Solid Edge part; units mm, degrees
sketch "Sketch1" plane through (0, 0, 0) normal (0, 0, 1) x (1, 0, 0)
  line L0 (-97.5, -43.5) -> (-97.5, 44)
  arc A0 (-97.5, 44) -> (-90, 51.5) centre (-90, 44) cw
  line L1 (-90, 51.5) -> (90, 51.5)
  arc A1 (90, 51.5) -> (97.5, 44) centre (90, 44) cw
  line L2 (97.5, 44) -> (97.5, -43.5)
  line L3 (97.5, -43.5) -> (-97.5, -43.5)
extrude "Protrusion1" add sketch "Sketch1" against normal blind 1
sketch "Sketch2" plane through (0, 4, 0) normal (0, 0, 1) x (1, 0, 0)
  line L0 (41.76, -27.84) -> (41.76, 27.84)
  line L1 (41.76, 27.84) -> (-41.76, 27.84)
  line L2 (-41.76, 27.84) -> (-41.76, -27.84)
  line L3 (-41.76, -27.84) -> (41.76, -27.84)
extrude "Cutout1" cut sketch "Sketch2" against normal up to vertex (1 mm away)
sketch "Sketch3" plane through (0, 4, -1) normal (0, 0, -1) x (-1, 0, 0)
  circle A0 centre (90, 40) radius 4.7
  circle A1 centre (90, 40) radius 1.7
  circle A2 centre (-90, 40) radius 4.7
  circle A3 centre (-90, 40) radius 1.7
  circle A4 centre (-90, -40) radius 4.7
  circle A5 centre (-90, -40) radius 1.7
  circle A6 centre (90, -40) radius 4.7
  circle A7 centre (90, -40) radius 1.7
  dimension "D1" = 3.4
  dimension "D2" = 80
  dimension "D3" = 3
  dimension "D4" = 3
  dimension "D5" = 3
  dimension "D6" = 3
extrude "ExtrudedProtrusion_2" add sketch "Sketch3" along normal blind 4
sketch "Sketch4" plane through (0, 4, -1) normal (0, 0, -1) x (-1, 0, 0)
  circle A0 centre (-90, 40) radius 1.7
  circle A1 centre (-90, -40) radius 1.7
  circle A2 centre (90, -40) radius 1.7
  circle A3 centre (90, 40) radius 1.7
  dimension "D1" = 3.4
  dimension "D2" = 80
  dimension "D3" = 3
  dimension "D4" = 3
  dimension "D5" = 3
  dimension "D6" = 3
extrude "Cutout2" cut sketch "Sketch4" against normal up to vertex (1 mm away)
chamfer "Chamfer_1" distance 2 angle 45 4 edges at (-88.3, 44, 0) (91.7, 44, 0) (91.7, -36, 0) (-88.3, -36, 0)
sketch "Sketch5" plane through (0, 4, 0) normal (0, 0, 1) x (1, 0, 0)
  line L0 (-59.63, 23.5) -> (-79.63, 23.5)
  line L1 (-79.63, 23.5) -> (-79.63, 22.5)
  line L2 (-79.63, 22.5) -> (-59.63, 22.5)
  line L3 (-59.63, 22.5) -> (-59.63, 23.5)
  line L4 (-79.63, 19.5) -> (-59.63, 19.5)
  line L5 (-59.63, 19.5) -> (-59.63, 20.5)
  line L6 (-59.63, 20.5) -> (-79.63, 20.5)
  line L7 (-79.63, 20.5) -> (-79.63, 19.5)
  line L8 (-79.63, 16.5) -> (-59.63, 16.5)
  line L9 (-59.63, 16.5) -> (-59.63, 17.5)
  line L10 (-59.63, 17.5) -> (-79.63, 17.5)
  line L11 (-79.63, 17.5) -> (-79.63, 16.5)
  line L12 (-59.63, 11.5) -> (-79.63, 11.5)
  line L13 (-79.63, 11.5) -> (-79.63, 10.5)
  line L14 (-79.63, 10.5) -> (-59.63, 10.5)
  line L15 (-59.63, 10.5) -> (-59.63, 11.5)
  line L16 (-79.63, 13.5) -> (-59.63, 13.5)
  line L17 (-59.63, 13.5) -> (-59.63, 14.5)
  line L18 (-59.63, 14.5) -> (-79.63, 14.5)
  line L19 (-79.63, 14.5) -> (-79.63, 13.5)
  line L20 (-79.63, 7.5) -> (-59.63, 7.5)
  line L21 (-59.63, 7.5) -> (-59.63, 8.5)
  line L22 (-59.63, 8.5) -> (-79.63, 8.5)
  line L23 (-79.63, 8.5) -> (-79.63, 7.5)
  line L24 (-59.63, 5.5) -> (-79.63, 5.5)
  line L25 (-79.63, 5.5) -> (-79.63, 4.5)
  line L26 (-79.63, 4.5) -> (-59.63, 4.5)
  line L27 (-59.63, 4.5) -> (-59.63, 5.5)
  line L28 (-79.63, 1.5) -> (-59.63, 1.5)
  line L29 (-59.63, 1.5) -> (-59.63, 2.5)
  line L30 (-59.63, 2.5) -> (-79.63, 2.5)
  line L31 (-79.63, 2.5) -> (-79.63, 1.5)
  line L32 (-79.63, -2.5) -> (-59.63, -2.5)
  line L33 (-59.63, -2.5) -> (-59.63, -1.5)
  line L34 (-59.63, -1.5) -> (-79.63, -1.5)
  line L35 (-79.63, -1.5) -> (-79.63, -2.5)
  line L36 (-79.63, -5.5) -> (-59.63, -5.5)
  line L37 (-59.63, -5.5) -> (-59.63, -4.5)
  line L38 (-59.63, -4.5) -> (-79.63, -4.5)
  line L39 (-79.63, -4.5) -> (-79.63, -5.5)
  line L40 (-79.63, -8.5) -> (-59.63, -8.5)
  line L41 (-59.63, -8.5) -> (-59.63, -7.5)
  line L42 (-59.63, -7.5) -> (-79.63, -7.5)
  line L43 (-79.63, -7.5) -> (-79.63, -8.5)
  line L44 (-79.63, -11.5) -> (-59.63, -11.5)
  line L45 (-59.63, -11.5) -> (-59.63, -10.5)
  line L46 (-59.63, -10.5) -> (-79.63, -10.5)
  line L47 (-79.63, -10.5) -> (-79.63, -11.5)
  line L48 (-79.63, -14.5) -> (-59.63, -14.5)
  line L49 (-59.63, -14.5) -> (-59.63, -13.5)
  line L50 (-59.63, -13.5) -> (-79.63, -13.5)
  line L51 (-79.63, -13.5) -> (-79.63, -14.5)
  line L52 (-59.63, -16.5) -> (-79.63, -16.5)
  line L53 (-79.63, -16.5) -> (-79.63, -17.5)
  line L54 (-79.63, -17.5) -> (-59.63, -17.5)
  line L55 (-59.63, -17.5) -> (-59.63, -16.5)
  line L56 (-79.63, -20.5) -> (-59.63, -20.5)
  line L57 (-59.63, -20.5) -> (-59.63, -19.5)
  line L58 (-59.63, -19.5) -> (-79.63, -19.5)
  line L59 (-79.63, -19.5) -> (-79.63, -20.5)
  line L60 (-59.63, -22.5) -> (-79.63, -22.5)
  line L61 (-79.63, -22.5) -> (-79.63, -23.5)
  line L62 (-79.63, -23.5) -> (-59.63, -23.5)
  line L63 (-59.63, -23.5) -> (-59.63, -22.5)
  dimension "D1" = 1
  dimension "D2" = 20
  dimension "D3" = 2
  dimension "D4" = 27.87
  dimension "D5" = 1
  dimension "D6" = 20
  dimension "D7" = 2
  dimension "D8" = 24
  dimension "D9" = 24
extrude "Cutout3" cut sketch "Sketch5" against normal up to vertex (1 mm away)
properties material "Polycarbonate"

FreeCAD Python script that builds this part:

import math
import FreeCAD as App
import Part
import Sketcher


def edges_at(feature, points):
    """Names of the edges that pass closest to the given points."""
    edges = feature.Shape.Edges
    near = lambda p: min(range(len(edges)), key=lambda i: edges[i].distToShape(Part.Vertex(*p))[0])
    return sorted({f"Edge{near(p) + 1}" for p in points})


def add_polygon(sketch, points):
    """Adds a closed chain of lines whose ends are joined by coincident constraints."""
    first, n = sketch.GeometryCount, len(points)
    for a, b in zip(points, points[1:] + points[:1]):
        sketch.addGeometry(Part.LineSegment(App.Vector(*a, 0), App.Vector(*b, 0)), False)
    for i in range(n):
        sketch.addConstraint(Sketcher.Constraint("Coincident", first + i, 2, first + (i + 1) % n, 1))

doc = App.newDocument("Part")
body = doc.addObject("PartDesign::Body", "Body")

# Sketch on XY plane
sketch1 = body.newObject("Sketcher::SketchObject", "Sketch")
sketch1.AttachmentSupport = (doc.getObject("XY_Plane"), [""])
sketch1.MapMode = "FlatFace"
sketch1.addGeometry([
    Part.LineSegment(App.Vector(-98, 44, 0), App.Vector(-98, -44, 0)),  # 0
    Part.LineSegment(App.Vector(-98, -44, 0), App.Vector(98, -44, 0)),  # 1
    Part.LineSegment(App.Vector(98, -44, 0), App.Vector(98, 44, 0)),  # 2
    Part.ArcOfCircle(Part.Circle(App.Vector(90, 44, 0), App.Vector(0, 0, 1), 8), math.radians(0), math.radians(90)),  # 3
    Part.LineSegment(App.Vector(90, 52, 0), App.Vector(-90, 52, 0)),  # 4
    Part.ArcOfCircle(Part.Circle(App.Vector(-90, 44, 0), App.Vector(0, 0, 1), 8), math.radians(90), math.radians(180)),  # 5
], False)
sketch1.addConstraint([
    Sketcher.Constraint("Coincident", 0, 2, 1, 1),
    Sketcher.Constraint("Coincident", 1, 2, 2, 1),
    Sketcher.Constraint("Tangent", 2, 2, 3, 1),
    Sketcher.Constraint("Tangent", 3, 2, 4, 1),
    Sketcher.Constraint("Tangent", 4, 2, 5, 1),
    Sketcher.Constraint("Tangent", 5, 2, 0, 1),
    Sketcher.Constraint("Vertical", 0),
    Sketcher.Constraint("Horizontal", 1),
    Sketcher.Constraint("Vertical", 2),
    Sketcher.Constraint("Horizontal", 4),
    Sketcher.Constraint("Equal", 3, 5),
    Sketcher.Constraint("Radius", 3, 7.5),
    Sketcher.Constraint("DistanceX", 1, 1, 1, 2, 195.0),
    Sketcher.Constraint("DistanceY", 0, 2, 0, 1, 87.5),
    Sketcher.Constraint("DistanceX", -1, 1, 3, 3, 90.0),
    Sketcher.Constraint("DistanceY", -1, 1, 3, 3, 44.0),
])
pad1 = body.newObject("PartDesign::Pad", "Pad")
pad1.Profile = sketch1
pad1.Length = 1
pad1.Reversed = True

# Sketch on XY plane
sketch2 = body.newObject("Sketcher::SketchObject", "Sketch001")
sketch2.AttachmentSupport = (doc.getObject("XY_Plane"), [""])
sketch2.MapMode = "FlatFace"
add_polygon(sketch2, [(-42, -24), (42, -24), (42, 32), (-42, 32)])  # lines 0-3
sketch2.addConstraint([
    Sketcher.Constraint("Horizontal", 0),
    Sketcher.Constraint("Vertical", 1),
    Sketcher.Constraint("Horizontal", 2),
    Sketcher.Constraint("Vertical", 3),
    Sketcher.Constraint("DistanceX", 0, 1, 0, 2, 83.52),
    Sketcher.Constraint("DistanceY", 1, 1, 1, 2, 55.68),
    Sketcher.Constraint("DistanceX", -1, 1, 0, 2, 41.76),
    Sketcher.Constraint("DistanceY", 0, 2, -1, 1, 23.84),
])
pocket1 = body.newObject("PartDesign::Pocket", "Pocket")
pocket1.Profile = sketch2
pocket1.Length = 1

# Sketch on XY plane
sketch3 = body.newObject("Sketcher::SketchObject", "Sketch002")
sketch3.AttachmentSupport = (doc.getObject("XY_Plane"), [""])
sketch3.MapMode = "FlatFace"
sketch3.AttachmentOffset = App.Placement(App.Vector(0, 0, -1), App.Rotation())
sketch3.addGeometry([
    Part.Circle(App.Vector(-90, 44, 0), App.Vector(0, 0, 1), 4.7),  # 0
    Part.Circle(App.Vector(-90, 44, 0), App.Vector(0, 0, 1), 1.7),  # 1
    Part.Circle(App.Vector(90, 44, 0), App.Vector(0, 0, 1), 4.7),  # 2
    Part.Circle(App.Vector(90, 44, 0), App.Vector(0, 0, 1), 1.7),  # 3
    Part.Circle(App.Vector(90, -36, 0), App.Vector(0, 0, 1), 4.7),  # 4
    Part.Circle(App.Vector(90, -36, 0), App.Vector(0, 0, 1), 1.7),  # 5
    Part.Circle(App.Vector(-90, -36, 0), App.Vector(0, 0, 1), 4.7),  # 6
    Part.Circle(App.Vector(-90, -36, 0), App.Vector(0, 0, 1), 1.7),  # 7
], False)
sketch3.addConstraint([
    Sketcher.Constraint("Coincident", 1, 3, 0, 3),
    Sketcher.Constraint("Coincident", 3, 3, 2, 3),
    Sketcher.Constraint("Coincident", 5, 3, 4, 3),
    Sketcher.Constraint("Coincident", 7, 3, 6, 3),
    Sketcher.Constraint("Equal", 0, 2),
    Sketcher.Constraint("Equal", 1, 3),
    Sketcher.Constraint("Equal", 2, 4),
    Sketcher.Constraint("Equal", 3, 5),
    Sketcher.Constraint("Equal", 4, 6),
    Sketcher.Constraint("Equal", 5, 7),
    Sketcher.Constraint("Symmetric", 0, 3, 2, 3, -2),
    Sketcher.Constraint("Symmetric", 4, 3, 6, 3, -2),
    Sketcher.Constraint("Vertical", 3, 3, 4, 3),
    Sketcher.Constraint("Diameter", 0, 9.4),
    Sketcher.Constraint("Diameter", 1, 3.4),
    Sketcher.Constraint("DistanceX", 0, 3, -1, 1, 90.0),
    Sketcher.Constraint("DistanceY", -1, 1, 0, 3, 44.0),
    Sketcher.Constraint("DistanceY", 4, 3, -1, 1, 36.0),
])
pad2 = body.newObject("PartDesign::Pad", "Pad001")
pad2.Profile = sketch3
pad2.Length = 4
pad2.Reversed = True

# Sketch on XY plane
sketch4 = body.newObject("Sketcher::SketchObject", "Sketch003")
sketch4.AttachmentSupport = (doc.getObject("XY_Plane"), [""])
sketch4.MapMode = "FlatFace"
sketch4.AttachmentOffset = App.Placement(App.Vector(0, 0, -1), App.Rotation())
sketch4.addGeometry([
    Part.Circle(App.Vector(90, 44, 0), App.Vector(0, 0, 1), 1.7),
    Part.Circle(App.Vector(90, -36, 0), App.Vector(0, 0, 1), 1.7),
    Part.Circle(App.Vector(-90, -36, 0), App.Vector(0, 0, 1), 1.7),
    Part.Circle(App.Vector(-90, 44, 0), App.Vector(0, 0, 1), 1.7),
], False)
sketch4.addConstraint([
    Sketcher.Constraint("Equal", 0, 1),
    Sketcher.Constraint("Equal", 1, 2),
    Sketcher.Constraint("Equal", 2, 3),
    Sketcher.Constraint("Symmetric", 1, 3, 2, 3, -2),
    Sketcher.Constraint("Symmetric", 0, 3, 3, 3, -2),
    Sketcher.Constraint("Vertical", 0, 3, 1, 3),
    Sketcher.Constraint("Diameter", 0, 3.4),
    Sketcher.Constraint("DistanceX", -1, 1, 0, 3, 90.0),
    Sketcher.Constraint("DistanceY", -1, 1, 0, 3, 44.0),
    Sketcher.Constraint("DistanceY", 1, 3, -1, 1, 36.0),
])
pocket2 = body.newObject("PartDesign::Pocket", "Pocket001")
pocket2.Profile = sketch4
pocket2.Length = 1
pocket2.Reversed = True
doc.recompute()

chamfer = body.newObject("PartDesign::Chamfer", "Chamfer")
chamfer.Base = (pocket2, edges_at(pocket2, [
    (-88.3, 44, 0),
    (91.7, 44, 0),
    (91.7, -36, 0),
    (-88.3, -36, 0),
]))
chamfer.Size = 2

# Sketch on XY plane
sketch5 = body.newObject("Sketcher::SketchObject", "Sketch004")
sketch5.AttachmentSupport = (doc.getObject("XY_Plane"), [""])
sketch5.MapMode = "FlatFace"
add_polygon(sketch5, [(-59.6, 26.5), (-59.6, 27.5), (-79.6, 27.5), (-79.6, 26.5)])  # lines 0-3
add_polygon(sketch5, [(-79.6, 24.5), (-79.6, 23.5), (-59.6, 23.5), (-59.6, 24.5)])  # lines 4-7
add_polygon(sketch5, [(-79.6, 21.5), (-79.6, 20.5), (-59.6, 20.5), (-59.6, 21.5)])  # lines 8-11
add_polygon(sketch5, [(-59.6, 14.5), (-59.6, 15.5), (-79.6, 15.5), (-79.6, 14.5)])  # lines 12-15
add_polygon(sketch5, [(-79.6, 18.5), (-79.6, 17.5), (-59.6, 17.5), (-59.6, 18.5)])  # lines 16-19
add_polygon(sketch5, [(-79.6, 12.5), (-79.6, 11.5), (-59.6, 11.5), (-59.6, 12.5)])  # lines 20-23
add_polygon(sketch5, [(-59.6, 8.5), (-59.6, 9.5), (-79.6, 9.5), (-79.6, 8.5)])  # lines 24-27
add_polygon(sketch5, [(-79.6, 6.5), (-79.6, 5.5), (-59.6, 5.5), (-59.6, 6.5)])  # lines 28-31
add_polygon(sketch5, [(-79.6, 2.5), (-79.6, 1.5), (-59.6, 1.5), (-59.6, 2.5)])  # lines 32-35
add_polygon(sketch5, [(-79.6, -0.5), (-79.6, -1.5), (-59.6, -1.5), (-59.6, -0.5)])  # lines 36-39
add_polygon(sketch5, [(-79.6, -3.5), (-79.6, -4.5), (-59.6, -4.5), (-59.6, -3.5)])  # lines 40-43
add_polygon(sketch5, [(-79.6, -6.5), (-79.6, -7.5), (-59.6, -7.5), (-59.6, -6.5)])  # lines 44-47
add_polygon(sketch5, [(-79.6, -9.5), (-79.6, -10.5), (-59.6, -10.5), (-59.6, -9.5)])  # lines 48-51
add_polygon(sketch5, [(-59.6, -13.5), (-59.6, -12.5), (-79.6, -12.5), (-79.6, -13.5)])  # lines 52-55
add_polygon(sketch5, [(-79.6, -15.5), (-79.6, -16.5), (-59.6, -16.5), (-59.6, -15.5)])  # lines 56-59
add_polygon(sketch5, [(-59.6, -19.5), (-59.6, -18.5), (-79.6, -18.5), (-79.6, -19.5)])  # lines 60-63
sketch5.addConstraint([
    Sketcher.Constraint("Vertical", 0),
    Sketcher.Constraint("Horizontal", 1),
    Sketcher.Constraint("Vertical", 2),
    Sketcher.Constraint("Horizontal", 3),
    Sketcher.Constraint("Vertical", 4),
    Sketcher.Constraint("Horizontal", 5),
    Sketcher.Constraint("Vertical", 6),
    Sketcher.Constraint("Horizontal", 7),
    Sketcher.Constraint("Vertical", 8),
    Sketcher.Constraint("Horizontal", 9),
    Sketcher.Constraint("Vertical", 10),
    Sketcher.Constraint("Horizontal", 11),
    Sketcher.Constraint("Vertical", 12),
    Sketcher.Constraint("Horizontal", 13),
    Sketcher.Constraint("Vertical", 14),
    Sketcher.Constraint("Horizontal", 15),
    Sketcher.Constraint("Vertical", 16),
    Sketcher.Constraint("Horizontal", 17),
    Sketcher.Constraint("Vertical", 18),
    Sketcher.Constraint("Horizontal", 19),
    Sketcher.Constraint("Vertical", 20),
    Sketcher.Constraint("Horizontal", 21),
    Sketcher.Constraint("Vertical", 22),
    Sketcher.Constraint("Horizontal", 23),
    Sketcher.Constraint("Vertical", 24),
    Sketcher.Constraint("Horizontal", 25),
    Sketcher.Constraint("Vertical", 26),
    Sketcher.Constraint("Horizontal", 27),
    Sketcher.Constraint("Vertical", 28),
    Sketcher.Constraint("Horizontal", 29),
    Sketcher.Constraint("Vertical", 30),
    Sketcher.Constraint("Horizontal", 31),
    Sketcher.Constraint("Vertical", 32),
    Sketcher.Constraint("Horizontal", 33),
    Sketcher.Constraint("Vertical", 34),
    Sketcher.Constraint("Horizontal", 35),
    Sketcher.Constraint("Vertical", 36),
    Sketcher.Constraint("Horizontal", 37),
    Sketcher.Constraint("Vertical", 38),
    Sketcher.Constraint("Horizontal", 39),
    Sketcher.Constraint("Vertical", 40),
    Sketcher.Constraint("Horizontal", 41),
    Sketcher.Constraint("Vertical", 42),
    Sketcher.Constraint("Horizontal", 43),
    Sketcher.Constraint("Vertical", 44),
    Sketcher.Constraint("Horizontal", 45),
    Sketcher.Constraint("Vertical", 46),
    Sketcher.Constraint("Horizontal", 47),
    Sketcher.Constraint("Vertical", 48),
    Sketcher.Constraint("Horizontal", 49),
    Sketcher.Constraint("Vertical", 50),
    Sketcher.Constraint("Horizontal", 51),
    Sketcher.Constraint("Vertical", 52),
    Sketcher.Constraint("Horizontal", 53),
    Sketcher.Constraint("Vertical", 54),
    Sketcher.Constraint("Horizontal", 55),
    Sketcher.Constraint("Vertical", 56),
    Sketcher.Constraint("Horizontal", 57),
    Sketcher.Constraint("Vertical", 58),
    Sketcher.Constraint("Horizontal", 59),
    Sketcher.Constraint("Vertical", 60),
    Sketcher.Constraint("Horizontal", 61),
    Sketcher.Constraint("Vertical", 62),
    Sketcher.Constraint("Horizontal", 63),
    Sketcher.Constraint("Symmetric", 32, 2, 36, 2, -1),
    Sketcher.Constraint("Symmetric", 30, 2, 46, 2, -1),
    Sketcher.Constraint("Symmetric", 24, 2, 50, 2, -1),
    Sketcher.Constraint("Symmetric", 22, 2, 52, 2, -1),
    Sketcher.Constraint("Symmetric", 12, 2, 58, 2, -1),
    Sketcher.Constraint("Symmetric", 18, 2, 60, 2, -1),
    Sketcher.Constraint("Vertical", 2, 2, 4, 2),
    Sketcher.Constraint("Vertical", 3, 2, 5, 2),
    Sketcher.Constraint("Vertical", 7, 2, 8, 2),
    Sketcher.Constraint("Vertical", 6, 2, 9, 2),
    Sketcher.Constraint("Vertical", 10, 2, 12, 2),
    Sketcher.Constraint("Vertical", 11, 2, 13, 2),
    Sketcher.Constraint("Vertical", 14, 2, 16, 2),
    Sketcher.Constraint("Vertical", 15, 2, 17, 2),
    Sketcher.Constraint("Vertical", 19, 2, 20, 2),
    Sketcher.Constraint("Vertical", 18, 2, 21, 2),
    Sketcher.Constraint("Vertical", 22, 2, 24, 2),
    Sketcher.Constraint("Vertical", 23, 2, 25, 2),
    Sketcher.Constraint("Vertical", 26, 2, 28, 2),
    Sketcher.Constraint("Vertical", 27, 2, 29, 2),
    Sketcher.Constraint("Vertical", 31, 2, 32, 2),
    Sketcher.Constraint("Vertical", 30, 2, 33, 2),
    Sketcher.Constraint("Vertical", 34, 2, 37, 2),
    Sketcher.Constraint("Vertical", 39, 2, 40, 2),
    Sketcher.Constraint("Vertical", 38, 2, 41, 2),
    Sketcher.Constraint("Vertical", 43, 2, 44, 2),
    Sketcher.Constraint("Vertical", 47, 2, 48, 2),
    Sketcher.Constraint("Vertical", 51, 2, 53, 2),
    Sketcher.Constraint("Vertical", 54, 2, 56, 2),
    Sketcher.Constraint("Vertical", 59, 2, 61, 2),
    Sketcher.Constraint("Equal", 2, 4),
    Sketcher.Constraint("Equal", 6, 8),
    Sketcher.Constraint("Equal", 10, 12),
    Sketcher.Constraint("Equal", 14, 16),
    Sketcher.Constraint("Equal", 18, 20),
    Sketcher.Constraint("Equal", 22, 24),
    Sketcher.Constraint("Equal", 26, 28),
    Sketcher.Constraint("Equal", 30, 32),
    Sketcher.Constraint("Equal", 34, 36),
    Sketcher.Constraint("Equal", 38, 40),
    Sketcher.Constraint("Equal", 42, 44),
    Sketcher.Constraint("Equal", 46, 48),
    Sketcher.Constraint("Equal", 50, 52),
    Sketcher.Constraint("Equal", 54, 56),
    Sketcher.Constraint("Equal", 58, 60),
    Sketcher.Constraint("DistanceX", 1, 2, 1, 1, 20.0),
    Sketcher.Constraint("DistanceY", 0, 1, 0, 2, 1.0),
    Sketcher.Constraint("DistanceY", -1, 1, 0, 2, 27.5),
    Sketcher.Constraint("DistanceY", -1, 1, 4, 2, 23.5),
    Sketcher.Constraint("DistanceY", -1, 1, 8, 2, 20.5),
    Sketcher.Constraint("DistanceY", -1, 1, 12, 2, 15.5),
    Sketcher.Constraint("DistanceY", -1, 1, 16, 2, 17.5),
    Sketcher.Constraint("DistanceY", -1, 1, 20, 2, 11.5),
    Sketcher.Constraint("DistanceY", -1, 1, 24, 2, 9.5),
    Sketcher.Constraint("DistanceY", -1, 1, 28, 2, 5.5),
    Sketcher.Constraint("DistanceY", -1, 1, 32, 2, 1.5),
    Sketcher.Constraint("DistanceY", 40, 2, -1, 1, 4.5),
    Sketcher.Constraint("DistanceX", 0, 2, -1, 1, 59.63),
])
pocket3 = body.newObject("PartDesign::Pocket", "Pocket002")
pocket3.Profile = sketch5
pocket3.Length = 1

doc.recompute()
